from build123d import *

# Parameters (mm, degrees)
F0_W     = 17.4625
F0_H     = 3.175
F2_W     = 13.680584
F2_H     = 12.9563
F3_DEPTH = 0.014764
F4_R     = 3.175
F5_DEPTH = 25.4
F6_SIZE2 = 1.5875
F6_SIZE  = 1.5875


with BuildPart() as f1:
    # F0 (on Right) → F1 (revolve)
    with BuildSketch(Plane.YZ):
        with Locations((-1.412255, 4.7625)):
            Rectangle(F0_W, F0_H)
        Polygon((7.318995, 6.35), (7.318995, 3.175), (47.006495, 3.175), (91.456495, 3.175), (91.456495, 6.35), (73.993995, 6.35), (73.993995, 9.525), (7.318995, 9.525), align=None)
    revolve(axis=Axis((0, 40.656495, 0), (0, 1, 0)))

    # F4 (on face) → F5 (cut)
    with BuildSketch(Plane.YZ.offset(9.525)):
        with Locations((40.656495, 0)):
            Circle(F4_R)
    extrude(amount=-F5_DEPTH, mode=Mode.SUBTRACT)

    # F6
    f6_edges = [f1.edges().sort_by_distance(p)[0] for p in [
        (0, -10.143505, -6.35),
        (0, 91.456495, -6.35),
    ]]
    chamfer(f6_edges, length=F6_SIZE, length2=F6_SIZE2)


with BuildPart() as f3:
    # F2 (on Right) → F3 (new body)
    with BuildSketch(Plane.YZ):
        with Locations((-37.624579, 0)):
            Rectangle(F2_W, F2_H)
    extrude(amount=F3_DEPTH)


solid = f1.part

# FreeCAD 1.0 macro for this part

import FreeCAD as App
import Part
import Sketcher
from FreeCAD import Vector
Q = App.Units.Quantity


def edges_at(feature, points):
    """Names of the edges that pass closest to the given points."""
    edges = feature.Shape.Edges
    near = lambda p: min(range(len(edges)), key=lambda i: edges[i].distToShape(Part.Vertex(*p))[0])
    return sorted({f"Edge{near(p) + 1}" for p in points})

doc = App.newDocument("Part")
body = doc.addObject("PartDesign::Body", "Body")

# Sketch on YZ plane
sketch1 = doc.addObject("Sketcher::SketchObject", "Sketch")
body.addObject(sketch1)
sketch1.AttachmentSupport = (doc.YZ_Plane, [""])
sketch1.MapMode = "FlatFace"
sketch1.addGeometry([
    Part.LineSegment(Vector(-10.1, 6.3, 0), Vector(-10.1, 3.2, 0)),  # 0
    Part.LineSegment(Vector(-10.1, 3.2, 0), Vector(91.5, 3.2, 0)),  # 1
    Part.LineSegment(Vector(91.5, 3.2, 0), Vector(91.5, 6.3, 0)),  # 2
    Part.LineSegment(Vector(91.5, 6.3, 0), Vector(74, 6.3, 0)),  # 3
    Part.LineSegment(Vector(74, 6.3, 0), Vector(74, 9.5, 0)),  # 4
    Part.LineSegment(Vector(74, 9.5, 0), Vector(7.3, 9.5, 0)),  # 5
    Part.LineSegment(Vector(7.3, 9.5, 0), Vector(7.3, 6.3, 0)),  # 6
    Part.LineSegment(Vector(7.3, 6.3, 0), Vector(-10.1, 6.3, 0)),  # 7
], False)
sketch1.addConstraint([
    Sketcher.Constraint("Coincident", 0, 2, 1, 1),
    Sketcher.Constraint("Coincident", 1, 2, 2, 1),
    Sketcher.Constraint("Coincident", 2, 2, 3, 1),
    Sketcher.Constraint("Coincident", 3, 2, 4, 1),
    Sketcher.Constraint("Coincident", 4, 2, 5, 1),
    Sketcher.Constraint("Coincident", 5, 2, 6, 1),
    Sketcher.Constraint("Coincident", 6, 2, 7, 1),
    Sketcher.Constraint("Coincident", 7, 2, 0, 1),
    Sketcher.Constraint("Vertical", 0),
    Sketcher.Constraint("Horizontal", 1),
    Sketcher.Constraint("Vertical", 2),
    Sketcher.Constraint("Horizontal", 3),
    Sketcher.Constraint("Vertical", 4),
    Sketcher.Constraint("Horizontal", 5),
    Sketcher.Constraint("Vertical", 6),
    Sketcher.Constraint("Horizontal", 7),
    Sketcher.Constraint("Horizontal", 3, 2, 6, 2),
    Sketcher.Constraint("Equal", 3, 7),
    Sketcher.Constraint("Equal", 2, 4),
    Sketcher.Constraint("DistanceX", 1, 1, 1, 2, Q("4 in")),
    Sketcher.Constraint("DistanceX", 3, 2, 3, 1, Q("0.6875 in")),
    Sketcher.Constraint("DistanceY", 0, 2, 0, 1, Q("0.125 in")),
    Sketcher.Constraint("DistanceY", -1, 1, 2, 2, Q("0.25 in")),
    Sketcher.Constraint("DistanceX", 0, 2, -1, 1, Q("10.143505 mm")),
])
revolution = doc.addObject("PartDesign::Revolution", "Revolution")
body.addObject(revolution)
revolution.Profile = sketch1
revolution.ReferenceAxis = (sketch1, ["H_Axis"])
revolution.Angle = 360

# Sketch on YZ plane
sketch2 = doc.addObject("Sketcher::SketchObject", "Sketch001")
body.addObject(sketch2)
sketch2.AttachmentSupport = (doc.YZ_Plane, [""])
sketch2.MapMode = "FlatFace"
sketch2.AttachmentOffset = App.Placement(Vector(0, 0, 0.375 * 25.4), App.Rotation())
sketch2.addGeometry(Part.Circle(Vector(40.7, 0, 0), Vector(0, 0, 1), 3.2), False)
sketch2.addConstraint([
    Sketcher.Constraint("PointOnObject", 0, 3, -1),
    Sketcher.Constraint("Diameter", 0, Q("0.25 in")),
    Sketcher.Constraint("DistanceX", -1, 1, 0, 3, Q("40.656495 mm")),
])
pocket1 = doc.addObject("PartDesign::Pocket", "Pocket")
body.addObject(pocket1)
pocket1.Profile = sketch2
pocket1.Length = Q("1 in")
doc.recompute()

chamfer = doc.addObject("PartDesign::Chamfer", "Chamfer")
body.addObject(chamfer)
chamfer.Base = (pocket1, edges_at(pocket1, [(0, -10.144, -6.35), (0, 91.456, -6.35)]))
chamfer.ChamferType = "Two distances"
chamfer.Size = Q("0.0625 in")
chamfer.Size2 = Q("0.0625 in")
body2 = doc.addObject("PartDesign::Body", "Body001")

# Sketch on YZ plane
sketch3 = doc.addObject("Sketcher::SketchObject", "Sketch002")
body2.addObject(sketch3)
sketch3.AttachmentSupport = (doc.getObject("YZ_Plane001"), [""])
sketch3.MapMode = "FlatFace"
sketch3.addGeometry([
    Part.LineSegment(Vector(-44, 6, 0), Vector(-44, -6, 0)),
    Part.LineSegment(Vector(-44, -6, 0), Vector(-31, -6, 0)),
    Part.LineSegment(Vector(-31, -6, 0), Vector(-31, 6, 0)),
    Part.LineSegment(Vector(-31, 6, 0), Vector(-44, 6, 0)),
], False)
sketch3.addConstraint([
    Sketcher.Constraint("Coincident", 0, 2, 1, 1),
    Sketcher.Constraint("Coincident", 1, 2, 2, 1),
    Sketcher.Constraint("Coincident", 2, 2, 3, 1),
    Sketcher.Constraint("Coincident", 3, 2, 0, 1),
    Sketcher.Constraint("Vertical", 0),
    Sketcher.Constraint("Horizontal", 1),
    Sketcher.Constraint("Vertical", 2),
    Sketcher.Constraint("Horizontal", 3),
    Sketcher.Constraint("DistanceY", 0, 2, 0, 1, Q("12.9563 mm")),
    Sketcher.Constraint("DistanceX", 1, 1, 1, 2, Q("13.680584 mm")),
    Sketcher.Constraint("DistanceX", 0, 2, -1, 1, Q("44.464871 mm")),
    Sketcher.Constraint("DistanceY", 0, 2, -1, 1, Q("6.47815 mm")),
])
pad1 = doc.addObject("PartDesign::Pad", "Pad")
body2.addObject(pad1)
pad1.Profile = sketch3
pad1.Length = 0.014764
body2.Visibility = False

doc.recompute()
